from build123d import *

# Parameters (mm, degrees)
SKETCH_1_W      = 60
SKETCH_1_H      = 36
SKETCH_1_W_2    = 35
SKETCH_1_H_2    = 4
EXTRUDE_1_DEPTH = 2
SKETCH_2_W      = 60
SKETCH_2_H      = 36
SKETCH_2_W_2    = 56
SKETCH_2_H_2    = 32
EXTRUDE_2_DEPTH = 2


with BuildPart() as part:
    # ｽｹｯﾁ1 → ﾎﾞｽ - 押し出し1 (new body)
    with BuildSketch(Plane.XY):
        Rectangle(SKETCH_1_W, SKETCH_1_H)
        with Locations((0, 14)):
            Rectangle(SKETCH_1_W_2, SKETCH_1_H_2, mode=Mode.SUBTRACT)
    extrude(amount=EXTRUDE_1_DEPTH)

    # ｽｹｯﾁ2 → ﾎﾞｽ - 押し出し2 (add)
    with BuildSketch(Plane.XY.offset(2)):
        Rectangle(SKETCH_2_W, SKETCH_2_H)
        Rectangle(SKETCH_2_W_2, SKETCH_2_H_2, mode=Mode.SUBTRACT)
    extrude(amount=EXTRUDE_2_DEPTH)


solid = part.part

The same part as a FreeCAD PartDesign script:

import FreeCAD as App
import Part
import Sketcher
from FreeCAD import Vector


def add_polygon(sketch, points):
    """Adds a closed chain of lines whose ends are joined by coincident constraints."""
    first, n = sketch.GeometryCount, len(points)
    for a, b in zip(points, points[1:] + points[:1]):
        sketch.addGeometry(Part.LineSegment(App.Vector(*a, 0), App.Vector(*b, 0)), False)
    for i in range(n):
        sketch.addConstraint(Sketcher.Constraint("Coincident", first + i, 2, first + (i + 1) % n, 1))

doc = App.newDocument("Part")
params = doc.addObject("Spreadsheet::Sheet", "Params")
for row, (alias, value) in enumerate([
    ("sketch1_width", "60 mm"),
    ("sketch1_width2", "35 mm"),
    ("sketch1_height", "36 mm"),
    ("sketch1_height2", "4 mm"),
    ("pad1_length", "2 mm"),
    ("sketch2_width", "60 mm"),
    ("sketch2_width2", "56 mm"),
    ("sketch2_height", "36 mm"),
    ("sketch2_height2", "32 mm"),
    ("pad2_length", "2 mm"),
], start=1):
    params.set(f"A{row}", alias)
    params.set(f"B{row}", "=" + value)
    params.setAlias(f"B{row}", alias)

body = doc.addObject("PartDesign::Body", "Body")

# Sketch on XY plane
sketch1 = doc.addObject("Sketcher::SketchObject", "Sketch")
body.addObject(sketch1)
sketch1.AttachmentSupport = (doc.XY_Plane, [""])
sketch1.MapMode = "FlatFace"
add_polygon(sketch1, [(-30, 18), (-30, -18), (30, -18), (30, 18)])  # lines 0-3
add_polygon(sketch1, [(17.5, 12), (-17.5, 12), (-17.5, 16), (17.5, 16)])  # lines 4-7
sketch1.addConstraint(Sketcher.Constraint("Vertical", 0))
sketch1.addConstraint(Sketcher.Constraint("Horizontal", 1))
sketch1.addConstraint(Sketcher.Constraint("Vertical", 2))
sketch1.addConstraint(Sketcher.Constraint("Horizontal", 3))
sketch1.addConstraint(Sketcher.Constraint("Horizontal", 4))
sketch1.addConstraint(Sketcher.Constraint("Vertical", 5))
sketch1.addConstraint(Sketcher.Constraint("Horizontal", 6))
sketch1.addConstraint(Sketcher.Constraint("Vertical", 7))
sketch1.addConstraint(Sketcher.Constraint("Symmetric", 0, 2, 2, 2, -1, 1))
sketch1.addConstraint(Sketcher.Constraint("DistanceX", 1, 1, 1, 2, 60.0))
sketch1.addConstraint(Sketcher.Constraint("DistanceX", 4, 2, 4, 1, 35.0))
sketch1.addConstraint(Sketcher.Constraint("DistanceY", 0, 2, 0, 1, 36.0))
sketch1.addConstraint(Sketcher.Constraint("DistanceY", 5, 1, 5, 2, 4.0))
sketch1.addConstraint(Sketcher.Constraint("DistanceY", -1, 1, 4, 2, 12.0))
sketch1.addConstraint(Sketcher.Constraint("DistanceX", 4, 2, -1, 1, 17.5))
sketch1.setExpression("Constraints[17]", "Params.sketch1_width")
sketch1.setExpression("Constraints[18]", "Params.sketch1_width2")
sketch1.setExpression("Constraints[19]", "Params.sketch1_height")
sketch1.setExpression("Constraints[20]", "Params.sketch1_height2")
pad1 = doc.addObject("PartDesign::Pad", "Pad")
body.addObject(pad1)
pad1.Profile = sketch1
pad1.setExpression("Length", "Params.pad1_length")

# Sketch on XY plane
sketch2 = doc.addObject("Sketcher::SketchObject", "Sketch001")
body.addObject(sketch2)
sketch2.AttachmentSupport = (doc.XY_Plane, [""])
sketch2.MapMode = "FlatFace"
sketch2.AttachmentOffset = App.Placement(Vector(0, 0, 2), App.Rotation())
add_polygon(sketch2, [(-30, 18), (-30, -18), (30, -18), (30, 18)])  # lines 0-3
add_polygon(sketch2, [(28, -16), (-28, -16), (-28, 16), (28, 16)])  # lines 4-7
sketch2.addConstraint(Sketcher.Constraint("Vertical", 0))
sketch2.addConstraint(Sketcher.Constraint("Horizontal", 1))
sketch2.addConstraint(Sketcher.Constraint("Vertical", 2))
sketch2.addConstraint(Sketcher.Constraint("Horizontal", 3))
sketch2.addConstraint(Sketcher.Constraint("Horizontal", 4))
sketch2.addConstraint(Sketcher.Constraint("Vertical", 5))
sketch2.addConstraint(Sketcher.Constraint("Horizontal", 6))
sketch2.addConstraint(Sketcher.Constraint("Vertical", 7))
sketch2.addConstraint(Sketcher.Constraint("Symmetric", 0, 2, 2, 2, -1, 1))
sketch2.addConstraint(Sketcher.Constraint("Symmetric", 4, 2, 6, 2, -1, 1))
sketch2.addConstraint(Sketcher.Constraint("DistanceX", 1, 1, 1, 2, 60.0))
sketch2.addConstraint(Sketcher.Constraint("DistanceX", 4, 2, 4, 1, 56.0))
sketch2.addConstraint(Sketcher.Constraint("DistanceY", 0, 2, 0, 1, 36.0))
sketch2.addConstraint(Sketcher.Constraint("DistanceY", 5, 1, 5, 2, 32.0))
sketch2.setExpression("Constraints[18]", "Params.sketch2_width")
sketch2.setExpression("Constraints[19]", "Params.sketch2_width2")
sketch2.setExpression("Constraints[20]", "Params.sketch2_height")
sketch2.setExpression("Constraints[21]", "Params.sketch2_height2")
pad2 = doc.addObject("PartDesign::Pad", "Pad001")
body.addObject(pad2)
pad2.Profile = sketch2
pad2.setExpression("Length", "Params.pad2_length")

doc.recompute()
